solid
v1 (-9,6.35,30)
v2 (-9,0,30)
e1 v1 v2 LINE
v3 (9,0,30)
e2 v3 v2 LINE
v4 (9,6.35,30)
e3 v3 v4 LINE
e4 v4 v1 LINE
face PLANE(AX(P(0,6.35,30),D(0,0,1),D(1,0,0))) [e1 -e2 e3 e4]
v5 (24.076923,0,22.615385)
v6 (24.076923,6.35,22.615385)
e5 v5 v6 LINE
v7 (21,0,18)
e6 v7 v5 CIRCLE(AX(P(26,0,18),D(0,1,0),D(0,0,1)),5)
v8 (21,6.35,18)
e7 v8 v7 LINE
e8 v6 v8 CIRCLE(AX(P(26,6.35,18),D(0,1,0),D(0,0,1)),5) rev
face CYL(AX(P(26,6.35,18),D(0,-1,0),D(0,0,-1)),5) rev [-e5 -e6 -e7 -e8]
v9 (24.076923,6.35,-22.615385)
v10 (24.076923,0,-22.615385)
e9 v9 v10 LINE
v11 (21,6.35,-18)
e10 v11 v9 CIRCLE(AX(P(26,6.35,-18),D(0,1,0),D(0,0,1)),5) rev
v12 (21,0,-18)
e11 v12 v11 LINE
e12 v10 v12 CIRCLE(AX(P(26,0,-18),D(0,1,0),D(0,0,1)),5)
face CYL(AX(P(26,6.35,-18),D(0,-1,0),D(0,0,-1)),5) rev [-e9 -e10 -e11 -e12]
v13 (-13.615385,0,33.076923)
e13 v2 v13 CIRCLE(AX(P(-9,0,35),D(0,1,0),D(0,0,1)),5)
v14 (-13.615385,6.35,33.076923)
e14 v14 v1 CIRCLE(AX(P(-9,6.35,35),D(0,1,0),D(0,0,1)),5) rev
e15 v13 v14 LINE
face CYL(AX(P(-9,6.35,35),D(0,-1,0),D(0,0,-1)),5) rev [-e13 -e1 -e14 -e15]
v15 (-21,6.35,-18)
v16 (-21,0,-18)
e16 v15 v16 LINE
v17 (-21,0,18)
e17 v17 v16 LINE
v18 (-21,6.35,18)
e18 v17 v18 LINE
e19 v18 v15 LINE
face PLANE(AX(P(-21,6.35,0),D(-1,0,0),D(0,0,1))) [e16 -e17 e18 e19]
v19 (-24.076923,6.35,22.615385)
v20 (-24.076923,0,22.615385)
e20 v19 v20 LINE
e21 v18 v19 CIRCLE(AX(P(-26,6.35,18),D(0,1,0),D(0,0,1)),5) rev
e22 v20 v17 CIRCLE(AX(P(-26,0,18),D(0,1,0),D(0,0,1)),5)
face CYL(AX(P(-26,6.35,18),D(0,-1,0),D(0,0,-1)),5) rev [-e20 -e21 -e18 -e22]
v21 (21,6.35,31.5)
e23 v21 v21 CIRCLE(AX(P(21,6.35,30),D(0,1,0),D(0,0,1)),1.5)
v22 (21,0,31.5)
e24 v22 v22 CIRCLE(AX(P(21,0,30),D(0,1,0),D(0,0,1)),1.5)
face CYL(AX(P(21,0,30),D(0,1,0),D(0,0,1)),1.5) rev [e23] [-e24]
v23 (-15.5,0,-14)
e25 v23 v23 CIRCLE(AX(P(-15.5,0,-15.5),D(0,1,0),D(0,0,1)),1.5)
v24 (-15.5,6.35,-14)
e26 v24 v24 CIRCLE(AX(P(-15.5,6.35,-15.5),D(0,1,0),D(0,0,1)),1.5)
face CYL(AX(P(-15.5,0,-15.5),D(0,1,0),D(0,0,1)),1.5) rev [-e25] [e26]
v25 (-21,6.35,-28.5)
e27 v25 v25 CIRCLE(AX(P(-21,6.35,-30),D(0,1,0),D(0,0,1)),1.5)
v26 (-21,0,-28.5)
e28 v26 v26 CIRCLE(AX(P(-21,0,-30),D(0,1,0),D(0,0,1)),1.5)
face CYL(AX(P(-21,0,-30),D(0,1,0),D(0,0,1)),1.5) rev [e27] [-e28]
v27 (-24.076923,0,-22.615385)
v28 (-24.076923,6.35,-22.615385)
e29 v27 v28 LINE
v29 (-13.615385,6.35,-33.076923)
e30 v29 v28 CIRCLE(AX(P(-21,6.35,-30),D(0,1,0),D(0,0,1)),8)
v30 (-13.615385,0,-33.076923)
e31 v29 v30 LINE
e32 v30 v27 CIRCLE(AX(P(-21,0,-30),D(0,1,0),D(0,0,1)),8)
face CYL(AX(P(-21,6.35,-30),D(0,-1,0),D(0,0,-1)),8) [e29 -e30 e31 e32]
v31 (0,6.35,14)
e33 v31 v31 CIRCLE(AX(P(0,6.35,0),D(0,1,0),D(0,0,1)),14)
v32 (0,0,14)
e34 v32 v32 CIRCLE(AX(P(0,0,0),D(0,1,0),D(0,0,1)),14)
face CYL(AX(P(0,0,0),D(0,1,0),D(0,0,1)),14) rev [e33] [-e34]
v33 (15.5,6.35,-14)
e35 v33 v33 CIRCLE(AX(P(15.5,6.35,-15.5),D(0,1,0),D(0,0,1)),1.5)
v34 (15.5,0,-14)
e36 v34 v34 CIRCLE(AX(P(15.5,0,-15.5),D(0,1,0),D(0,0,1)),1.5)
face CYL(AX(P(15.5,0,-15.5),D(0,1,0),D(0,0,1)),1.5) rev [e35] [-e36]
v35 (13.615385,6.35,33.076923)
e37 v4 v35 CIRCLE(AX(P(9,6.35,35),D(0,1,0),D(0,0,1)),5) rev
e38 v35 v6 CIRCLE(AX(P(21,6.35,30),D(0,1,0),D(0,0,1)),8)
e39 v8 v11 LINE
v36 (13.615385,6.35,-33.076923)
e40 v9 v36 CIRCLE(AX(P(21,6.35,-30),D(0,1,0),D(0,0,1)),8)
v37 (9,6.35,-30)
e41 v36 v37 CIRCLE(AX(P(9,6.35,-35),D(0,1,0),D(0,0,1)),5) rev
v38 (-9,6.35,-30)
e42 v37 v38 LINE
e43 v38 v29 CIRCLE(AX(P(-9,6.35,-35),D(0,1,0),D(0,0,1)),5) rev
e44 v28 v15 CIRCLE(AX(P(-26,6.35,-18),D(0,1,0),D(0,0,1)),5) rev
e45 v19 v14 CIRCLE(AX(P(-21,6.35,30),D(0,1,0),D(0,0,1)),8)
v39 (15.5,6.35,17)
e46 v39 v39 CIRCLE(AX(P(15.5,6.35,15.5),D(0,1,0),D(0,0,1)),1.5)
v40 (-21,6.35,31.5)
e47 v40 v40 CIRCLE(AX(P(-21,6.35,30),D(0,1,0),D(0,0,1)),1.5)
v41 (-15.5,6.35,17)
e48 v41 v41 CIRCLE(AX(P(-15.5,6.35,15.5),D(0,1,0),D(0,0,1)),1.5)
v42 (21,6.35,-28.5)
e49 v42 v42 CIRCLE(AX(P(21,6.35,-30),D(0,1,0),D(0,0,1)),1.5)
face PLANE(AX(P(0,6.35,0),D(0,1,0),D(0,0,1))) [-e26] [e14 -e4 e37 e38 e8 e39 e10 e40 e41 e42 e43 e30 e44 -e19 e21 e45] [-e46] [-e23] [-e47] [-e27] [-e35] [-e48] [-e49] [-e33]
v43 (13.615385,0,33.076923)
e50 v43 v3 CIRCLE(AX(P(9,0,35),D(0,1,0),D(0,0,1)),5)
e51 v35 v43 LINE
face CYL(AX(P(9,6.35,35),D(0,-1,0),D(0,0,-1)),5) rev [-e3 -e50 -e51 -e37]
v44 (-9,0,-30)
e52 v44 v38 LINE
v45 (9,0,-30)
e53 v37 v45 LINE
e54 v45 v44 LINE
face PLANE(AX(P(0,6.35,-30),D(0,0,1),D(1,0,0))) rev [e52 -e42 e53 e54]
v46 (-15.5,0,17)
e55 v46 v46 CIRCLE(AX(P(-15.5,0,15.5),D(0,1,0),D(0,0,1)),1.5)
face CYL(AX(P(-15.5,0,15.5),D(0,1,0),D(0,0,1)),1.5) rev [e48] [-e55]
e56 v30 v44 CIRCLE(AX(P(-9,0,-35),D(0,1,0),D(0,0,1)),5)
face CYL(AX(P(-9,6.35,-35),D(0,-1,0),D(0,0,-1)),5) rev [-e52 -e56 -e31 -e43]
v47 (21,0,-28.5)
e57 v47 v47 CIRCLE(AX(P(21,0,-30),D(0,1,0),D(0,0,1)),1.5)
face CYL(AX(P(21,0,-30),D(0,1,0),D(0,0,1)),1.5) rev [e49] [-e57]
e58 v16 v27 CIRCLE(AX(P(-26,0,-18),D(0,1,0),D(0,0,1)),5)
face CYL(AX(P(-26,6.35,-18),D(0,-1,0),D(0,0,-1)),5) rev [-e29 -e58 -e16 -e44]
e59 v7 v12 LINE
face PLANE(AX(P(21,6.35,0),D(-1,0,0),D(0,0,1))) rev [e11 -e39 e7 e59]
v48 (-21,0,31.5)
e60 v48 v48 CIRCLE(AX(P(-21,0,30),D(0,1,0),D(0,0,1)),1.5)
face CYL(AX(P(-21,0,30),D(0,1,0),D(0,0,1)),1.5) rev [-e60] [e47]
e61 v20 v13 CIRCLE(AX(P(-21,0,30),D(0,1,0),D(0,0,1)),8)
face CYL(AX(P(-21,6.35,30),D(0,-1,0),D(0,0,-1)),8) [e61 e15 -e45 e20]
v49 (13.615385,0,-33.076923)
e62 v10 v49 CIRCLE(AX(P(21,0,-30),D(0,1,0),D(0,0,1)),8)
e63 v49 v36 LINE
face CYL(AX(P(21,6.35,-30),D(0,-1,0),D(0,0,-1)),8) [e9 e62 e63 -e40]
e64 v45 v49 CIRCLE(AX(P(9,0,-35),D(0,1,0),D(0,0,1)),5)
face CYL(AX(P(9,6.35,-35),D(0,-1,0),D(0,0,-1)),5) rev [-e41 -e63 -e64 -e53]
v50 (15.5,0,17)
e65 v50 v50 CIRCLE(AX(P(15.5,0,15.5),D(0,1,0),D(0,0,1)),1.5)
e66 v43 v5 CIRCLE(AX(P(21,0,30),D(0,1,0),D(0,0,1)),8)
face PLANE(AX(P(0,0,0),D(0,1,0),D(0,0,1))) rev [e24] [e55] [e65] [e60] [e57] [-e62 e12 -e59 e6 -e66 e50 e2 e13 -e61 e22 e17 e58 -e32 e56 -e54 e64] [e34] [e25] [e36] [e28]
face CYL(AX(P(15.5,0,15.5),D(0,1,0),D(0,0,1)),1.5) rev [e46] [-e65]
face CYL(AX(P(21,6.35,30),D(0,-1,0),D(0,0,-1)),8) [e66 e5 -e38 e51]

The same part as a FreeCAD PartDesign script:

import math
import FreeCAD as App
import Part
import Sketcher

V = App.Vector
Q = App.Units.Quantity


def edges_at(feature, points):
    """Names of the edges that pass closest to the given points."""
    edges = feature.Shape.Edges
    near = lambda p: min(range(len(edges)), key=lambda i: edges[i].distToShape(Part.Vertex(*p))[0])
    return sorted({f"Edge{near(p) + 1}" for p in points})

doc = App.newDocument("Part")
params = doc.addObject("Spreadsheet::Sheet", "Params")
for row, (alias, value) in enumerate([
    ("sketch1_radius", "8 mm"),
    ("sketch1_width", "26 mm"),
    ("sketch1_height", "44 mm"),
    ("pad1_length", "6.35 mm"),
    ("sketch2_diameter", "3 mm"),
    ("sketch2_diameter2", "28 mm"),
    ("sketch3_diameter", "3 mm"),
    ("fillet_radius", "5 mm"),
], start=1):
    params.set(f"A{row}", alias)
    params.set(f"B{row}", "=" + value)
    params.setAlias(f"B{row}", alias)

body = doc.addObject("PartDesign::Body", "Body")

sketch1 = body.newObject("Sketcher::SketchObject", "Sketch")
sketch1.AttachmentSupport = (doc.getObject("XZ_Plane"), [""])
sketch1.MapMode = "FlatFace"
sketch1.addGeometry(Part.LineSegment(V(-21, -22, 0), V(-21, 22, 0)), False)
sketch1.addGeometry(Part.ArcOfCircle(Part.Circle(V(-21, 30, 0), V(0, 0, 1), 8), math.radians(0), math.radians(270)), False)
sketch1.addGeometry(Part.LineSegment(V(-13, 30, 0), V(13, 30, 0)), False)
sketch1.addGeometry(Part.ArcOfCircle(Part.Circle(V(21, 30, 0), V(0, 0, 1), 8), math.radians(0), math.radians(180)), False)
sketch1.addGeometry(Part.ArcOfCircle(Part.Circle(V(21, 30, 0), V(0, 0, 1), 8), math.radians(-90), math.radians(0)), False)
sketch1.addGeometry(Part.LineSegment(V(21, 22, 0), V(21, -22, 0)), False)
sketch1.addGeometry(Part.ArcOfCircle(Part.Circle(V(21, -30, 0), V(0, 0, 1), 8), math.radians(180), math.radians(450)), False)
sketch1.addGeometry(Part.LineSegment(V(13, -30, 0), V(-13, -30, 0)), False)
sketch1.addGeometry(Part.ArcOfCircle(Part.Circle(V(-21, -30, 0), V(0, 0, 1), 8), math.radians(90), math.radians(360)), False)
sketch1.addConstraint(Sketcher.Constraint("Coincident", 0, 2, 1, 2))
sketch1.addConstraint(Sketcher.Constraint("Coincident", 1, 1, 2, 1))
sketch1.addConstraint(Sketcher.Constraint("Coincident", 2, 2, 3, 2))
sketch1.addConstraint(Sketcher.Constraint("Tangent", 3, 1, 4, 2))
sketch1.addConstraint(Sketcher.Constraint("Coincident", 4, 1, 5, 1))
sketch1.addConstraint(Sketcher.Constraint("Coincident", 5, 2, 6, 2))
sketch1.addConstraint(Sketcher.Constraint("Coincident", 6, 1, 7, 1))
sketch1.addConstraint(Sketcher.Constraint("Coincident", 7, 2, 8, 2))
sketch1.addConstraint(Sketcher.Constraint("Coincident", 8, 1, 0, 1))
sketch1.addConstraint(Sketcher.Constraint("Vertical", 0))
sketch1.addConstraint(Sketcher.Constraint("Horizontal", 2))
sketch1.addConstraint(Sketcher.Constraint("Vertical", 5))
sketch1.addConstraint(Sketcher.Constraint("Horizontal", 7))
sketch1.addConstraint(Sketcher.Constraint("Equal", 1, 3))
sketch1.addConstraint(Sketcher.Constraint("Equal", 3, 4))
sketch1.addConstraint(Sketcher.Constraint("Equal", 4, 6))
sketch1.addConstraint(Sketcher.Constraint("Equal", 6, 8))
sketch1.addConstraint(Sketcher.Constraint("Symmetric", 1, 3, 6, 3, -1, 1))
sketch1.addConstraint(Sketcher.Constraint("Symmetric", 3, 3, 8, 3, -1, 1))
sketch1.addConstraint(Sketcher.Constraint("Symmetric", 1, 3, 3, 3, -2))
sketch1.addConstraint(Sketcher.Constraint("Horizontal", 4, 3, 1, 1))
sketch1.addConstraint(Sketcher.Constraint("Horizontal", 2, 2, 3, 1))
sketch1.addConstraint(Sketcher.Constraint("Horizontal", 8, 3, 6, 1))
sketch1.addConstraint(Sketcher.Constraint("Vertical", 8, 3, 0, 2))
sketch1.addConstraint(Sketcher.Constraint("Vertical", 6, 3, 4, 1))
sketch1.addConstraint(Sketcher.Constraint("Radius", 1, Q("8 mm")))
sketch1.addConstraint(Sketcher.Constraint("DistanceX", 2, 1, 2, 2, Q("26 mm")))
sketch1.addConstraint(Sketcher.Constraint("DistanceY", 0, 1, 0, 2, Q("44 mm")))
sketch1.setExpression("Constraints[25]", "Params.sketch1_radius")
sketch1.setExpression("Constraints[26]", "Params.sketch1_width")
sketch1.setExpression("Constraints[27]", "Params.sketch1_height")
pad1 = body.newObject("PartDesign::Pad", "Pad")
pad1.Profile = sketch1
pad1.setExpression("Length", "Params.pad1_length")
pad1.Reversed = True

sketch2 = body.newObject("Sketcher::SketchObject", "Sketch001")
sketch2.AttachmentSupport = (doc.getObject("XZ_Plane"), [""])
sketch2.MapMode = "FlatFace"
sketch2.AttachmentOffset = App.Placement(V(0, 0, -6.35), App.Rotation())
sketch2.addGeometry(Part.Circle(V(-15.5, 15.5, 0), V(0, 0, 1), 1.5), False)
sketch2.addGeometry(Part.Circle(V(15.5, 15.5, 0), V(0, 0, 1), 1.5), False)
sketch2.addGeometry(Part.Circle(V(15.5, -15.5, 0), V(0, 0, 1), 1.5), False)
sketch2.addGeometry(Part.Circle(V(-15.5, -15.5, 0), V(0, 0, 1), 1.5), False)
sketch2.addGeometry(Part.Circle(V(0, 0, 0), V(0, 0, 1), 14), False)
sketch2.addConstraint(Sketcher.Constraint("Coincident", 4, 3, -1, 1))
sketch2.addConstraint(Sketcher.Constraint("Equal", 0, 1))
sketch2.addConstraint(Sketcher.Constraint("Equal", 1, 2))
sketch2.addConstraint(Sketcher.Constraint("Equal", 2, 3))
sketch2.addConstraint(Sketcher.Constraint("Symmetric", 0, 3, 2, 3, -1, 1))
sketch2.addConstraint(Sketcher.Constraint("Symmetric", 1, 3, 3, 3, -1, 1))
sketch2.addConstraint(Sketcher.Constraint("Symmetric", 0, 3, 1, 3, -2))
sketch2.addConstraint(Sketcher.Constraint("Diameter", 0, Q("3 mm")))
sketch2.addConstraint(Sketcher.Constraint("Diameter", 4, Q("28 mm")))
sketch2.addConstraint(Sketcher.Constraint("DistanceX", 0, 3, 1, 3, Q("31 mm")))
sketch2.addConstraint(Sketcher.Constraint("DistanceY", 2, 3, 1, 3, Q("31 mm")))
sketch2.setExpression("Constraints[7]", "Params.sketch2_diameter")
sketch2.setExpression("Constraints[8]", "Params.sketch2_diameter2")
pocket1 = body.newObject("PartDesign::Pocket", "Pocket")
pocket1.Profile = sketch2
pocket1.Type = "ThroughAll"
pocket1.Reversed = True

sketch3 = body.newObject("Sketcher::SketchObject", "Sketch002")
sketch3.AttachmentSupport = (doc.getObject("XZ_Plane"), [""])
sketch3.MapMode = "FlatFace"
sketch3.AttachmentOffset = App.Placement(V(0, 0, -6.35), App.Rotation())
sketch3.addGeometry(Part.Circle(V(-21, -30, 0), V(0, 0, 1), 1.5), False)
sketch3.addGeometry(Part.Circle(V(21, -30, 0), V(0, 0, 1), 1.5), False)
sketch3.addGeometry(Part.Circle(V(21, 30, 0), V(0, 0, 1), 1.5), False)
sketch3.addGeometry(Part.Circle(V(-21, 30, 0), V(0, 0, 1), 1.5), False)
sketch3.addConstraint(Sketcher.Constraint("Equal", 0, 1))
sketch3.addConstraint(Sketcher.Constraint("Equal", 1, 2))
sketch3.addConstraint(Sketcher.Constraint("Equal", 2, 3))
sketch3.addConstraint(Sketcher.Constraint("Symmetric", 0, 3, 2, 3, -1, 1))
sketch3.addConstraint(Sketcher.Constraint("Symmetric", 1, 3, 3, 3, -1, 1))
sketch3.addConstraint(Sketcher.Constraint("Symmetric", 0, 3, 1, 3, -2))
sketch3.addConstraint(Sketcher.Constraint("Diameter", 0, Q("3 mm")))
sketch3.addConstraint(Sketcher.Constraint("DistanceX", 0, 3, -1, 1, Q("21 mm")))
sketch3.addConstraint(Sketcher.Constraint("DistanceY", 0, 3, -1, 1, Q("30 mm")))
sketch3.setExpression("Constraints[6]", "Params.sketch3_diameter")
pocket2 = body.newObject("PartDesign::Pocket", "Pocket001")
pocket2.Profile = sketch3
pocket2.Type = "ThroughAll"
pocket2.Reversed = True
doc.recompute()

fillet = body.newObject("PartDesign::Fillet", "Fillet")
fillet.Base = (pocket2, edges_at(pocket2, [
    (13, 3.175, 30),
    (-13, 3.175, 30),
    (-21, 3.175, 22),
    (-21, 3.175, -22),
    (-13, 3.175, -30),
    (13, 3.175, -30),
    (21, 3.175, -22),
    (21, 3.175, 22),
]))
fillet.setExpression("Radius", "Params.fillet_radius")

doc.recompute()
